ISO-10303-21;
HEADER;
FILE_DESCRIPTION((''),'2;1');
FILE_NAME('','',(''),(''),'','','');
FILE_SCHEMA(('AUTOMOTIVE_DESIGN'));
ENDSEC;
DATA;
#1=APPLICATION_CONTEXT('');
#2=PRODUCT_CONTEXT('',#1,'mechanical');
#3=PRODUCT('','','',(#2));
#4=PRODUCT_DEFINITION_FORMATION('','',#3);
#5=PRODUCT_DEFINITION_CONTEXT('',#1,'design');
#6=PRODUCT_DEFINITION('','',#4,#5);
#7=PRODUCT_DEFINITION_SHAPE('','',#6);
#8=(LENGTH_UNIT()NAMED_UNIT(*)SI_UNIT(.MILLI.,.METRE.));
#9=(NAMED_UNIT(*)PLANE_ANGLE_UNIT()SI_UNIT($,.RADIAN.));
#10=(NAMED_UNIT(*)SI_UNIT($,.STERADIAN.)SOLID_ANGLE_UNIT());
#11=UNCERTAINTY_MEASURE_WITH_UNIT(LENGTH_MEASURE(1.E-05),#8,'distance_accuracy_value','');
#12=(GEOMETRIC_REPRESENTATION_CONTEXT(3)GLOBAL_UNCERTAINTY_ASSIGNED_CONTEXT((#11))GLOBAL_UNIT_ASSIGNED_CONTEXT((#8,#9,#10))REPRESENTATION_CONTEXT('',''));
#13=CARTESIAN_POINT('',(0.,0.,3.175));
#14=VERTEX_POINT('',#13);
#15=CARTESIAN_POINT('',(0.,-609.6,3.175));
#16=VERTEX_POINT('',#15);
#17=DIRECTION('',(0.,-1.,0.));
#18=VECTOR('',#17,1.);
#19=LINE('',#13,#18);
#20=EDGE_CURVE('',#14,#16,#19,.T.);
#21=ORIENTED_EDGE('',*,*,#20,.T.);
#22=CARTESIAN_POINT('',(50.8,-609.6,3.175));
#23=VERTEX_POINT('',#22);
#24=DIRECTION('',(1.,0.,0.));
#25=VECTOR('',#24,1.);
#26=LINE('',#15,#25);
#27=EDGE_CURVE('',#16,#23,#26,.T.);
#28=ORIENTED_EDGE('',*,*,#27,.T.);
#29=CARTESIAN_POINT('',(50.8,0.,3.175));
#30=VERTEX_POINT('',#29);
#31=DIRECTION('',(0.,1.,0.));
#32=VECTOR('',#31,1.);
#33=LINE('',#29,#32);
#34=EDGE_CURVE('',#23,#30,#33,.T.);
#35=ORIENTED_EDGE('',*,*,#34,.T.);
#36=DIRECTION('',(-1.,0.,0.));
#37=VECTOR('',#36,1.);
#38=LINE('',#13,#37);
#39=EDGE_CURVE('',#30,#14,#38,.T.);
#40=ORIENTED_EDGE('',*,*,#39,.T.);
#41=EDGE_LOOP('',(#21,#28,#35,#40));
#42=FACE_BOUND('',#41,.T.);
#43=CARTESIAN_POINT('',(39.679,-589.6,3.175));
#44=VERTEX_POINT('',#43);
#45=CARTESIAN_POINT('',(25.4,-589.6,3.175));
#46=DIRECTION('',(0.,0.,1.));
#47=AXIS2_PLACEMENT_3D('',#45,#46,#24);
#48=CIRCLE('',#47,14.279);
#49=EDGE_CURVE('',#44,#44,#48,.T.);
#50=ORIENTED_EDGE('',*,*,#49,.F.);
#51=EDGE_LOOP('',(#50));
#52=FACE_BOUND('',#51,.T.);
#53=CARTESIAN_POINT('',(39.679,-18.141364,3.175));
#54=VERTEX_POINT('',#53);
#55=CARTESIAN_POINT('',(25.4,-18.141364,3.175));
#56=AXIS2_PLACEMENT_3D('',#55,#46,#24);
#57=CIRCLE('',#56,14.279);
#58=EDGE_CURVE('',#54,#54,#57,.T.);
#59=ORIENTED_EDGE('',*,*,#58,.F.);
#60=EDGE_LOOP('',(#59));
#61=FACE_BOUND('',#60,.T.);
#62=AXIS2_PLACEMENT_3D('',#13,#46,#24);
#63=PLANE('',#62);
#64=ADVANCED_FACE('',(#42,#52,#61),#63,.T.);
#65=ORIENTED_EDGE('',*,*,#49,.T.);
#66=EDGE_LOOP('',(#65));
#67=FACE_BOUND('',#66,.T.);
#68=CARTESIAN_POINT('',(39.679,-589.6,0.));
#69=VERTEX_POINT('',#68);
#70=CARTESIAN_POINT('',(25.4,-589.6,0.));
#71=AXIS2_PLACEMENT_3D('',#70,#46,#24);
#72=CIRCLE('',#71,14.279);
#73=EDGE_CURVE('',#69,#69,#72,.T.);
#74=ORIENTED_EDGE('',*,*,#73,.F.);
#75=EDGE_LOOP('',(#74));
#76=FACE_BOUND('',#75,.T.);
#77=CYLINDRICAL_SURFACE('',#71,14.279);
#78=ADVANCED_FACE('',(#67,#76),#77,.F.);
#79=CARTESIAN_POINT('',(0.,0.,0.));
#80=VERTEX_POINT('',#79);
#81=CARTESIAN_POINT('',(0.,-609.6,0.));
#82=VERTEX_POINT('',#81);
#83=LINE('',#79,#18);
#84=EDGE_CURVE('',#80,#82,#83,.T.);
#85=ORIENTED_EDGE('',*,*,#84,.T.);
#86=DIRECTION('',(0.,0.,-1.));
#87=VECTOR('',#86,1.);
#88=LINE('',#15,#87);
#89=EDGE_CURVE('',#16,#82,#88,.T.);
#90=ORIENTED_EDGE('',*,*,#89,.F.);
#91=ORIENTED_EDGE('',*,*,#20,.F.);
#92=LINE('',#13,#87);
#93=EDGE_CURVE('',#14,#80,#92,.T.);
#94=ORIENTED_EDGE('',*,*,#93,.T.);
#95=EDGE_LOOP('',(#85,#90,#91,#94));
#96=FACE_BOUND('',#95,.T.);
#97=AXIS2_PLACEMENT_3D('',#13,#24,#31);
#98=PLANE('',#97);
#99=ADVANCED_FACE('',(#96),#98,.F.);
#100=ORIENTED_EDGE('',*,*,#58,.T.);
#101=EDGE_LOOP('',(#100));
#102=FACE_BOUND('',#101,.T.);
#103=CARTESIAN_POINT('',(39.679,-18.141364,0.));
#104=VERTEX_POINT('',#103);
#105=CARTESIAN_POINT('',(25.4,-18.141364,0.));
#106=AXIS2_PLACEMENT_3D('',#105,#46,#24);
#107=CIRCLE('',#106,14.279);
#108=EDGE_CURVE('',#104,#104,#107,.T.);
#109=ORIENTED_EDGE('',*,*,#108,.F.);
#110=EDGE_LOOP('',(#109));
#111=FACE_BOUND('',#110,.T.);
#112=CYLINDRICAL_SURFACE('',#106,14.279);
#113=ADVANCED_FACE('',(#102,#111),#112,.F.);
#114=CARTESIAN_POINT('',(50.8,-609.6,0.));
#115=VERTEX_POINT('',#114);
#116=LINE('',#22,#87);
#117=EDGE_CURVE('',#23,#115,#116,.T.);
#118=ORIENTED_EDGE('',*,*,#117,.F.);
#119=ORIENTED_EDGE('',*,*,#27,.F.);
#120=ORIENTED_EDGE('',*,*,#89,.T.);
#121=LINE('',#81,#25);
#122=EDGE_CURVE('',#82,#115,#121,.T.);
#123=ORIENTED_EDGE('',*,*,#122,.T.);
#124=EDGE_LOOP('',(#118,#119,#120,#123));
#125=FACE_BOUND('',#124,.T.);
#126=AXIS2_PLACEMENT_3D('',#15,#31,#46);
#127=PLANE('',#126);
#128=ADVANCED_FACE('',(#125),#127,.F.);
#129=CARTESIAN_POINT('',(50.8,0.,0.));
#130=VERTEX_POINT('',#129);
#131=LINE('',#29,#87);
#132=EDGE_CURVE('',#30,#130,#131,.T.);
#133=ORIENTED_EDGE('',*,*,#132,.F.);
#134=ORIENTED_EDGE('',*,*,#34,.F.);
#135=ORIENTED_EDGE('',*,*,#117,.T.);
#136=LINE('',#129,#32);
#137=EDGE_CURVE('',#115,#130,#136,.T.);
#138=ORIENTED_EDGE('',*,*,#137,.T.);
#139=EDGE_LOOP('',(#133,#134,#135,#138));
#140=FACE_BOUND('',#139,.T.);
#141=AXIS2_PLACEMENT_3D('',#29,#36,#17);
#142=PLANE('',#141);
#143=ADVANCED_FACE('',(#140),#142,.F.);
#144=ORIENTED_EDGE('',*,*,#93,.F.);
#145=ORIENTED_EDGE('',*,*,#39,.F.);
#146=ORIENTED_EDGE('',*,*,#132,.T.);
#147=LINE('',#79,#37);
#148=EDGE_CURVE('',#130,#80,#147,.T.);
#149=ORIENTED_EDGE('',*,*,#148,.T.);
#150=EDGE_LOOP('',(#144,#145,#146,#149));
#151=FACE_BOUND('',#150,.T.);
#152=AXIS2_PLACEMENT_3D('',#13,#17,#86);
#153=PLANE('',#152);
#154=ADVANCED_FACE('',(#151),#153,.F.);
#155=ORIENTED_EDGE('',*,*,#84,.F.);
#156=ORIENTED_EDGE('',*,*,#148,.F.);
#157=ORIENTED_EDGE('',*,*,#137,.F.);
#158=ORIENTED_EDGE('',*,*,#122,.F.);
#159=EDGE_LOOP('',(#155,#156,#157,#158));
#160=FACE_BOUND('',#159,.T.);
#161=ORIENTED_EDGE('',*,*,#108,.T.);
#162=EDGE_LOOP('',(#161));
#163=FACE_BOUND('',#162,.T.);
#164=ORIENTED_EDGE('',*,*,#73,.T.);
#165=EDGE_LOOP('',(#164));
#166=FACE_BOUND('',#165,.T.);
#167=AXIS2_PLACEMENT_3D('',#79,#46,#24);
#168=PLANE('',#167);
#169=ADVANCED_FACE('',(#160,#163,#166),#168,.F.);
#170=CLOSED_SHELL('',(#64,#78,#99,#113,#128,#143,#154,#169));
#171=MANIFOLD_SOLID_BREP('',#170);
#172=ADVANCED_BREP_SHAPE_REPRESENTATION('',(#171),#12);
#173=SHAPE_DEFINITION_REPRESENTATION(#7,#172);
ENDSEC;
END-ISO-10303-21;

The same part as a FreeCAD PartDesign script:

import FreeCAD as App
import Part
import Sketcher

V = App.Vector
Q = App.Units.Quantity

doc = App.newDocument("Part")
body = doc.addObject("PartDesign::Body", "Body")

sketch1 = body.newObject("Sketcher::SketchObject", "Sketch")
sketch1.AttachmentSupport = (doc.getObject("XY_Plane"), [""])
sketch1.MapMode = "FlatFace"
sketch1.addGeometry([
    Part.LineSegment(V(0, 0, 0), V(0, -609.6, 0)),
    Part.LineSegment(V(0, -609.6, 0), V(50.8, -609.6, 0)),
    Part.LineSegment(V(50.8, -609.6, 0), V(50.8, 0, 0)),
    Part.LineSegment(V(50.8, 0, 0), V(0, 0, 0)),
], False)
sketch1.addConstraint([
    Sketcher.Constraint("Coincident", 0, 2, 1, 1),
    Sketcher.Constraint("Coincident", 1, 2, 2, 1),
    Sketcher.Constraint("Coincident", 2, 2, 3, 1),
    Sketcher.Constraint("Coincident", 3, 2, 0, 1),
    Sketcher.Constraint("Vertical", 0),
    Sketcher.Constraint("Horizontal", 1),
    Sketcher.Constraint("Vertical", 2),
    Sketcher.Constraint("Horizontal", 3),
    Sketcher.Constraint("Coincident", 3, 2, -1, 1),
    Sketcher.Constraint("DistanceX", 1, 1, 1, 2, Q("2 in")),
    Sketcher.Constraint("DistanceY", 0, 2, 0, 1, Q("24 in")),
])
pad1 = body.newObject("PartDesign::Pad", "Pad")
pad1.Profile = sketch1
pad1.Length = Q("0.125 in")

sketch2 = body.newObject("Sketcher::SketchObject", "Sketch001")
sketch2.AttachmentSupport = (doc.getObject("XY_Plane"), [""])
sketch2.MapMode = "FlatFace"
sketch2.AttachmentOffset = App.Placement(V(0, 0, 0.125 * 25.4), App.Rotation())
sketch2.addGeometry([
    Part.Circle(V(25.4, -18.141364, 0), V(0, 0, 1), 14.279),
    Part.Circle(V(25.4, -589.6, 0), V(0, 0, 1), 14.279),
], False)
sketch2.addConstraint([
    Sketcher.Constraint("Equal", 0, 1),
    Sketcher.Constraint("Vertical", 0, 3, 1, 3),
    Sketcher.Constraint("DistanceX", -1, 1, 0, 3, Q("1 in")),
    Sketcher.Constraint("Diameter", 0, 28.558),
    Sketcher.Constraint("DistanceY", 1, 3, -1, 1, 589.6),
    Sketcher.Constraint("DistanceY", 0, 3, -1, 1, 18.141364),
])
pocket1 = body.newObject("PartDesign::Pocket", "Pocket")
pocket1.Profile = sketch2
pocket1.Type = "ThroughAll"

doc.recompute()
